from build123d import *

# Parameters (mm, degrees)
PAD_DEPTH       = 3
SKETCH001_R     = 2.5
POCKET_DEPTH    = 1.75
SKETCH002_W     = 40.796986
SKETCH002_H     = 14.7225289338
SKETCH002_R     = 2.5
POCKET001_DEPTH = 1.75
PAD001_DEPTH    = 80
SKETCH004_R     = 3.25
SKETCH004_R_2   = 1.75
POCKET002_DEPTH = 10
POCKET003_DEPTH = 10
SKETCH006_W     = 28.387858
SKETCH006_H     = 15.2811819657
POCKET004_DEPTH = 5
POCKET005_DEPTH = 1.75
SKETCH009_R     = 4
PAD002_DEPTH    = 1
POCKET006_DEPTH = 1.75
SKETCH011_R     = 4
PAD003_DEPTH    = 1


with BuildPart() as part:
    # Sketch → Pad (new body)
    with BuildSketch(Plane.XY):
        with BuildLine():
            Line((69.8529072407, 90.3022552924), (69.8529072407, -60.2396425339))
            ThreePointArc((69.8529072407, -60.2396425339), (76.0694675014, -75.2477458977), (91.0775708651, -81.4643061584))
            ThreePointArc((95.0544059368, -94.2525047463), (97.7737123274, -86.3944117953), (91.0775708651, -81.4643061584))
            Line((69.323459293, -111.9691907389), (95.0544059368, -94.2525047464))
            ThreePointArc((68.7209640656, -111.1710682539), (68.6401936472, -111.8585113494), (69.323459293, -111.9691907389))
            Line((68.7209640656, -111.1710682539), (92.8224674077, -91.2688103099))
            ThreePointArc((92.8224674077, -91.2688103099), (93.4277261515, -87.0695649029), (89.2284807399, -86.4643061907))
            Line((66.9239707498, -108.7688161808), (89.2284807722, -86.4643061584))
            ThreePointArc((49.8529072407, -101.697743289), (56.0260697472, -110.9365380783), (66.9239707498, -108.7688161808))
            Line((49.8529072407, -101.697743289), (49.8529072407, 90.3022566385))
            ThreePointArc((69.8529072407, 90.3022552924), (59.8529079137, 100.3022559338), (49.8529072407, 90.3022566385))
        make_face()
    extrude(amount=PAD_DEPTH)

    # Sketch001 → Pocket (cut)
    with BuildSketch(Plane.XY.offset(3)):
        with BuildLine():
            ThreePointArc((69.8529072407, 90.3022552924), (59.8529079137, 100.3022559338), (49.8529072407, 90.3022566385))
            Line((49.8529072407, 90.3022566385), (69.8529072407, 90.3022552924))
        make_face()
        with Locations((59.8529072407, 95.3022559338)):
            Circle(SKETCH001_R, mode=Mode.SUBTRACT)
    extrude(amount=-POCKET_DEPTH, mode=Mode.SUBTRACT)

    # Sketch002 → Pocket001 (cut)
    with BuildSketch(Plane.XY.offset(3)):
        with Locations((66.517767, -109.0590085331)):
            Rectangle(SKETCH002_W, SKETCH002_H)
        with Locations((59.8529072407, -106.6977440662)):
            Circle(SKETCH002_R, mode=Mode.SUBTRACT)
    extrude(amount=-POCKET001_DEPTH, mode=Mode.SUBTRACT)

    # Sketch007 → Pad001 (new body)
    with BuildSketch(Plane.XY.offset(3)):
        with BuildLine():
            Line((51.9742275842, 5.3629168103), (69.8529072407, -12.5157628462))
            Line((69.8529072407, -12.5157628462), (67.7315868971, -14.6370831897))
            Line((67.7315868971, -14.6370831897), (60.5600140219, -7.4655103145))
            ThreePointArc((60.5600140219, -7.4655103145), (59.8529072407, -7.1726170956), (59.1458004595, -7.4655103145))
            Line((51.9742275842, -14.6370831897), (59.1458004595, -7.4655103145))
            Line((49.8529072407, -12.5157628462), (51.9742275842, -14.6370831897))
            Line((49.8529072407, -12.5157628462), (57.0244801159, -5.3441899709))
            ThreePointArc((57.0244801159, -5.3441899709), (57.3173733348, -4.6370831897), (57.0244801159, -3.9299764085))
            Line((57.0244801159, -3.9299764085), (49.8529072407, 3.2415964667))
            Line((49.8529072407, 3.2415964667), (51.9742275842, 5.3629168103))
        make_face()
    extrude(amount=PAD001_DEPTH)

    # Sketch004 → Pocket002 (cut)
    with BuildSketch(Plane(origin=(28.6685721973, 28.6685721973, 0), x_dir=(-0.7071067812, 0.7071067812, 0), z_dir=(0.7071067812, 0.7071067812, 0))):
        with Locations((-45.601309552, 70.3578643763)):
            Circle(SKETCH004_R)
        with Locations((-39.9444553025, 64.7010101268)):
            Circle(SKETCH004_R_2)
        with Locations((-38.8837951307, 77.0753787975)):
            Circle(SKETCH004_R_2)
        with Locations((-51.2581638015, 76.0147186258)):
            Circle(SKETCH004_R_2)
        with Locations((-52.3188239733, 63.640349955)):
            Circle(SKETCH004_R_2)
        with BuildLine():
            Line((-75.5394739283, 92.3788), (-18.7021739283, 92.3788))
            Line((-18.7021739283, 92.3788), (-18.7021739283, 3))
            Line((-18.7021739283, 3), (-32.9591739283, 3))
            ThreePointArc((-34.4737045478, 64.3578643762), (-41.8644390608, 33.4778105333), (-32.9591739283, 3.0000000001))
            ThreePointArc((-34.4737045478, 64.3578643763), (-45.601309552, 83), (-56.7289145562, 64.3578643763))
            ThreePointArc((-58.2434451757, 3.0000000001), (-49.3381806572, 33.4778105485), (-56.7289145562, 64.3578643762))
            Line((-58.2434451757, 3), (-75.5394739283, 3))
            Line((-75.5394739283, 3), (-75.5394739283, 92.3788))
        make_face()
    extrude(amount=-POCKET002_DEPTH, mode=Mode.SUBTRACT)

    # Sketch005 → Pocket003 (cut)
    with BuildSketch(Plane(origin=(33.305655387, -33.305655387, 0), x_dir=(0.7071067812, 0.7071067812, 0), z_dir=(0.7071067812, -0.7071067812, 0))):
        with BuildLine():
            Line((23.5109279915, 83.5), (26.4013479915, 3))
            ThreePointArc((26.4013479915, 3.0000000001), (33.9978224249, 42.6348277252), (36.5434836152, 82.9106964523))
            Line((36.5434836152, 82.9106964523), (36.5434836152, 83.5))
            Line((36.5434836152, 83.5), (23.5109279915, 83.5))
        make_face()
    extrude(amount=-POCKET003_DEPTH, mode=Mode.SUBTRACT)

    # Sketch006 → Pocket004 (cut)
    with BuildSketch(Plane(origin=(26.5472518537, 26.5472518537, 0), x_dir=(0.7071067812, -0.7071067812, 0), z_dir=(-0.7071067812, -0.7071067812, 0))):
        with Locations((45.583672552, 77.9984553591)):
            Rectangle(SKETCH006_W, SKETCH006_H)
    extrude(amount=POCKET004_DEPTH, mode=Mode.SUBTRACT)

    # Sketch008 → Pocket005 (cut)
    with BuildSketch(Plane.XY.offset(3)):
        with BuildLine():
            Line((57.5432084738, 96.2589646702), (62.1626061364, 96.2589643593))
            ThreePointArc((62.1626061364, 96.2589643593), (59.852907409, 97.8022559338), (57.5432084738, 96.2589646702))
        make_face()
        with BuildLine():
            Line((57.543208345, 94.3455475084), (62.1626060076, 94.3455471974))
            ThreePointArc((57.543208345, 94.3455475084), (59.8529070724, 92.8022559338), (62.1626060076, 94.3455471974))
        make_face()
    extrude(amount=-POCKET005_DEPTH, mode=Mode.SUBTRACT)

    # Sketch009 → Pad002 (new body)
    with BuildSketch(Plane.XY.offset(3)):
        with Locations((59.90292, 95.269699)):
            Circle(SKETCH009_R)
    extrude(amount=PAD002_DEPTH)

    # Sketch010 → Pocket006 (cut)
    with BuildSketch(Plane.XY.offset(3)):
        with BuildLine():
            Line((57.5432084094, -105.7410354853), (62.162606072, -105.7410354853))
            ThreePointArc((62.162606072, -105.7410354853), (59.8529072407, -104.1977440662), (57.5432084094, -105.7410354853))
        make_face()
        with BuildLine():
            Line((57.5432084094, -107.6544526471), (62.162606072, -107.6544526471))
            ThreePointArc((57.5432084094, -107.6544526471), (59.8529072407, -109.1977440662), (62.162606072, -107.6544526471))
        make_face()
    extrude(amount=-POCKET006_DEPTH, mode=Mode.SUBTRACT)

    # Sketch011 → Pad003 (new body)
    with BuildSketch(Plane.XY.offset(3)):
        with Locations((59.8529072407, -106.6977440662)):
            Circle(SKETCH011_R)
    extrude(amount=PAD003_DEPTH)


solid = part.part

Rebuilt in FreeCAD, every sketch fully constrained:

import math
import FreeCAD as App
import Part
import Sketcher
Q = App.Units.Quantity


def add_polygon(sketch, points):
    """Adds a closed chain of lines whose ends are joined by coincident constraints."""
    first, n = sketch.GeometryCount, len(points)
    for a, b in zip(points, points[1:] + points[:1]):
        sketch.addGeometry(Part.LineSegment(App.Vector(*a, 0), App.Vector(*b, 0)), False)
    for i in range(n):
        sketch.addConstraint(Sketcher.Constraint("Coincident", first + i, 2, first + (i + 1) % n, 1))

doc = App.newDocument("Part")
body = doc.addObject("PartDesign::Body", "Body")

# Sketch on XY plane
sketch1 = body.newObject("Sketcher::SketchObject", "Sketch")
sketch1.AttachmentSupport = (doc.getObject("XY_Plane"), [""])
sketch1.MapMode = "FlatFace"
sketch1.addGeometry([
    Part.LineSegment(App.Vector(69.9, -60.2, 0), App.Vector(69.9, 90.3, 0)),  # 0
    Part.ArcOfCircle(Part.Circle(App.Vector(59.9, 90.3, 0), App.Vector(0, 0, 1), 10), math.radians(0), math.radians(180)),  # 1
    Part.LineSegment(App.Vector(49.9, 90.3, 0), App.Vector(49.9, -101.7, 0)),  # 2
    Part.ArcOfCircle(Part.Circle(App.Vector(59.9, -101.7, 0), App.Vector(0, 0, 1), 10), math.radians(180), math.radians(315)),  # 3
    Part.LineSegment(App.Vector(66.9, -108.8, 0), App.Vector(89.2, -86.5, 0)),  # 4
    Part.ArcOfCircle(Part.Circle(App.Vector(91, -88.9, 0), App.Vector(0, 0, 1), 3), math.radians(-53), math.radians(127)),  # 5
    Part.LineSegment(App.Vector(92.8, -91.3, 0), App.Vector(68.7, -111.2, 0)),  # 6
    Part.ArcOfCircle(Part.Circle(App.Vector(69, -111.6, 0), App.Vector(0, 0, 1), 0.5), math.radians(130), math.radians(305)),  # 7
    Part.LineSegment(App.Vector(69.3, -112, 0), App.Vector(95.1, -94.3, 0)),  # 8
    Part.ArcOfCircle(Part.Circle(App.Vector(91.1, -88.5, 0), App.Vector(0, 0, 1), 7), math.radians(-55), math.radians(90)),  # 9
    Part.ArcOfCircle(Part.Circle(App.Vector(91.1, -60.2, 0), App.Vector(0, 0, 1), 21.2), math.radians(-180), math.radians(-90)),  # 10
], False)
sketch1.addConstraint([
    Sketcher.Constraint("Tangent", 0, 2, 1, 1),
    Sketcher.Constraint("Tangent", 1, 2, 2, 1),
    Sketcher.Constraint("Tangent", 2, 2, 3, 1),
    Sketcher.Constraint("Tangent", 3, 2, 4, 1),
    Sketcher.Constraint("Coincident", 4, 2, 5, 2),
    Sketcher.Constraint("Coincident", 5, 1, 6, 1),
    Sketcher.Constraint("Tangent", 6, 2, 7, 1),
    Sketcher.Constraint("Tangent", 7, 2, 8, 1),
    Sketcher.Constraint("Coincident", 8, 2, 9, 1),
    Sketcher.Constraint("Tangent", 9, 2, 10, 2),
    Sketcher.Constraint("Tangent", 10, 1, 0, 1),
    Sketcher.Constraint("Vertical", 0),
    Sketcher.Constraint("Vertical", 2),
    Sketcher.Constraint("Equal", 1, 3),
    Sketcher.Constraint("Vertical", 9, 3, 10, 3),
    Sketcher.Constraint("Radius", 1, 10.0),
    Sketcher.Constraint("Radius", 5, 3.0),
    Sketcher.Constraint("DistanceY", 2, 2, 2, 1, 192.0),
    Sketcher.Constraint("Angle", 4, Q("45 deg")),
    Sketcher.Constraint("DistanceY", 4, 2, 9, 2, 5.0),
    Sketcher.Constraint("Radius", 9, 7.012451),
    Sketcher.Constraint("Radius", 7, 0.500476),
    Sketcher.Constraint("Radius", 10, 21.224664),
    Sketcher.Constraint("Distance", 8, 31.2404),
    Sketcher.Constraint("DistanceY", 5, 3, 9, 3, 0.389801),
    Sketcher.Constraint("DistanceY", 10, 3, 1, 2, 150.541898),
    Sketcher.Constraint("DistanceY", 8, 2, 4, 2, 7.788199),
    Sketcher.Constraint("DistanceY", 5, 3, -1, 1, 88.866558),
    Sketcher.Constraint("DistanceX", -1, 1, 9, 3, 91.077571),
    Sketcher.Constraint("DistanceY", 5, 1, -1, 1, 91.26881),
    Sketcher.Constraint("DistanceY", 6, 2, -1, 1, 111.171068),
])
pad1 = body.newObject("PartDesign::Pad", "Pad")
pad1.Profile = sketch1
pad1.Length = 3

# Sketch on XY plane
sketch2 = body.newObject("Sketcher::SketchObject", "Sketch001")
sketch2.AttachmentSupport = (doc.getObject("XY_Plane"), [""])
sketch2.MapMode = "FlatFace"
sketch2.AttachmentOffset = App.Placement(App.Vector(0, 0, 3), App.Rotation())
sketch2.addGeometry([
    Part.ArcOfCircle(Part.Circle(App.Vector(59.9, 90.3, 0), App.Vector(0, 0, 1), 10), math.radians(0), math.radians(180)),
    Part.LineSegment(App.Vector(49.9, 90.3, 0), App.Vector(69.9, 90.3, 0)),
    Part.Circle(App.Vector(59.9, 95.3, 0), App.Vector(0, 0, 1), 2.5),
], False)
sketch2.addConstraint([
    Sketcher.Constraint("Coincident", 0, 1, 1, 2),
    Sketcher.Constraint("Coincident", 1, 1, 0, 2),
    Sketcher.Constraint("Horizontal", 1),
    Sketcher.Constraint("Vertical", 0, 3, 2, 3),
    Sketcher.Constraint("Diameter", 2, 5.0),
    Sketcher.Constraint("Radius", 0, 10.0),
    Sketcher.Constraint("DistanceY", 0, 3, 2, 3, 5.0),
    Sketcher.Constraint("DistanceY", 0, 1, 2, 3, 5.000001),
    Sketcher.Constraint("DistanceX", -1, 1, 0, 3, 59.852907),
    Sketcher.Constraint("DistanceY", -1, 1, 0, 3, 90.302256),
])
pocket1 = body.newObject("PartDesign::Pocket", "Pocket")
pocket1.Profile = sketch2
pocket1.Length = 1.75

# Sketch on XY plane
sketch3 = body.newObject("Sketcher::SketchObject", "Sketch002")
sketch3.AttachmentSupport = (doc.getObject("XY_Plane"), [""])
sketch3.MapMode = "FlatFace"
sketch3.AttachmentOffset = App.Placement(App.Vector(0, 0, 3), App.Rotation())
add_polygon(sketch3, [(46.1, -101.7), (46.1, -116.4), (86.9, -116.4), (86.9, -101.7)])  # lines 0-3
sketch3.addGeometry(Part.Circle(App.Vector(59.9, -106.7, 0), App.Vector(0, 0, 1), 2.5), False)  # 4
sketch3.addConstraint([
    Sketcher.Constraint("Vertical", 0),
    Sketcher.Constraint("Horizontal", 1),
    Sketcher.Constraint("Vertical", 2),
    Sketcher.Constraint("Horizontal", 3),
    Sketcher.Constraint("Diameter", 4, 5.0),
    Sketcher.Constraint("DistanceY", 4, 3, 2, 2, 5.0),
    Sketcher.Constraint("DistanceY", 0, 2, 0, 1, 14.722529),
    Sketcher.Constraint("DistanceX", 1, 1, 1, 2, 40.796986),
    Sketcher.Constraint("DistanceX", -1, 1, 1, 2, 86.91626),
    Sketcher.Constraint("DistanceX", -1, 1, 4, 3, 59.852907),
    Sketcher.Constraint("DistanceY", 4, 3, -1, 1, 106.697744),
])
pocket2 = body.newObject("PartDesign::Pocket", "Pocket001")
pocket2.Profile = sketch3
pocket2.Length = 1.75

# Sketch on XY plane
sketch4 = body.newObject("Sketcher::SketchObject", "Sketch003")
sketch4.AttachmentSupport = (doc.getObject("XY_Plane"), [""])
sketch4.MapMode = "FlatFace"
sketch4.AttachmentOffset = App.Placement(App.Vector(0, 0, 3), App.Rotation())
sketch4.addGeometry([
    Part.LineSegment(App.Vector(69.9, -12.5, 0), App.Vector(52, 5.4, 0)),  # 0
    Part.LineSegment(App.Vector(52, 5.4, 0), App.Vector(49.9, 3.2, 0)),  # 1
    Part.LineSegment(App.Vector(49.9, 3.2, 0), App.Vector(57, -3.9, 0)),  # 2
    Part.ArcOfCircle(Part.Circle(App.Vector(56.3, -4.6, 0), App.Vector(0, 0, 1), 1), math.radians(-45), math.radians(45)),  # 3
    Part.LineSegment(App.Vector(57, -5.3, 0), App.Vector(49.9, -12.5, 0)),  # 4
    Part.LineSegment(App.Vector(49.9, -12.5, 0), App.Vector(52, -14.6, 0)),  # 5
    Part.LineSegment(App.Vector(52, -14.6, 0), App.Vector(59.1, -7.5, 0)),  # 6
    Part.ArcOfCircle(Part.Circle(App.Vector(59.9, -8.2, 0), App.Vector(0, 0, 1), 1), math.radians(45), math.radians(135)),  # 7
    Part.LineSegment(App.Vector(60.6, -7.5, 0), App.Vector(67.7, -14.6, 0)),  # 8
    Part.LineSegment(App.Vector(67.7, -14.6, 0), App.Vector(69.9, -12.5, 0)),  # 9
], False)
sketch4.addConstraint([
    Sketcher.Constraint("Coincident", 0, 2, 1, 1),
    Sketcher.Constraint("Coincident", 1, 2, 2, 1),
    Sketcher.Constraint("Tangent", 2, 2, 3, 2),
    Sketcher.Constraint("Tangent", 3, 1, 4, 1),
    Sketcher.Constraint("Coincident", 4, 2, 5, 1),
    Sketcher.Constraint("Coincident", 5, 2, 6, 1),
    Sketcher.Constraint("Tangent", 6, 2, 7, 2),
    Sketcher.Constraint("Tangent", 7, 1, 8, 1),
    Sketcher.Constraint("Coincident", 8, 2, 9, 1),
    Sketcher.Constraint("Coincident", 9, 2, 0, 1),
    Sketcher.Constraint("Equal", 3, 7),
    Sketcher.Constraint("Perpendicular", 0, 1),
    Sketcher.Constraint("Perpendicular", 1, 2),
    Sketcher.Constraint("Perpendicular", 2, 4),
    Sketcher.Constraint("Perpendicular", 4, 5),
    Sketcher.Constraint("Perpendicular", 5, 6),
    Sketcher.Constraint("Perpendicular", 6, 8),
    Sketcher.Constraint("Perpendicular", 8, 9),
    Sketcher.Constraint("Horizontal", 6, 2, 7, 1),
    Sketcher.Constraint("Horizontal", 5, 2, 8, 2),
    Sketcher.Constraint("Horizontal", 4, 2, 9, 2),
    Sketcher.Constraint("Vertical", 1, 2, 4, 2),
    Sketcher.Constraint("Vertical", 0, 2, 5, 2),
    Sketcher.Constraint("Radius", 3, 1.0),
    Sketcher.Constraint("Distance", 1, 3.0),
    Sketcher.Constraint("DistanceY", 3, 3, 0, 2, 10.0),
    Sketcher.Constraint("DistanceX", -1, 1, 6, 2, 59.1458),
    Sketcher.Constraint("DistanceY", 3, 1, -1, 1, 5.34419),
])
pad2 = body.newObject("PartDesign::Pad", "Pad001")
pad2.Profile = sketch4
pad2.Length = 80

# Sketch on an angled plane
sketch5 = body.newObject("Sketcher::SketchObject", "Sketch004")
sketch5.Placement = App.Placement(App.Vector(28.668572, 28.668572, 0), App.Rotation(App.Vector(-0.707106781, 0.707106781, 0), App.Vector(0, 0, 0.999999999), App.Vector(0.707106781, 0.707106781, 0), "ZXY"))
sketch5.addGeometry([
    Part.Circle(App.Vector(-45.60131, 70.357864, 0), App.Vector(0, 0, 1), 3.25),  # 0
    Part.Circle(App.Vector(-39.944455, 64.70101, 0), App.Vector(0, 0, 1), 1.75),  # 1
    Part.Circle(App.Vector(-38.883795, 77.075379, 0), App.Vector(0, 0, 1), 1.75),  # 2
    Part.Circle(App.Vector(-51.258164, 76.014719, 0), App.Vector(0, 0, 1), 1.75),  # 3
    Part.Circle(App.Vector(-52.318824, 63.64035, 0), App.Vector(0, 0, 1), 1.75),  # 4
    Part.LineSegment(App.Vector(-18.702174, 92.3788, 0), App.Vector(-75.539474, 92.3788, 0)),  # 5
    Part.LineSegment(App.Vector(-75.539474, 92.3788, 0), App.Vector(-75.539474, 3, 0)),  # 6
    Part.LineSegment(App.Vector(-75.539474, 3, 0), App.Vector(-58.243445, 3, 0)),  # 7
    Part.ArcOfCircle(Part.Circle(App.Vector(-111.168499, 35.004003, 0), App.Vector(0, 0, 1), 61.849151), math.radians(-31.16153), math.radians(28.333577)),  # 8
    Part.ArcOfCircle(Part.Circle(App.Vector(-45.60131, 70.357864, 0), App.Vector(0, 0, 1), 12.642136), math.radians(-28.333528), math.radians(208.333528)),  # 9
    Part.ArcOfCircle(Part.Circle(App.Vector(19.965875, 35.004003, 0), App.Vector(0, 0, 1), 61.849147), math.radians(151.666421), math.radians(211.161532)),  # 10
    Part.LineSegment(App.Vector(-32.959174, 3, 0), App.Vector(-18.702174, 3, 0)),  # 11
    Part.LineSegment(App.Vector(-18.702174, 3, 0), App.Vector(-18.702174, 92.3788, 0)),  # 12
], False)
sketch5.addConstraint([
    Sketcher.Constraint("Coincident", 5, 2, 6, 1),
    Sketcher.Constraint("Coincident", 6, 2, 7, 1),
    Sketcher.Constraint("Coincident", 7, 2, 8, 1),
    Sketcher.Constraint("Coincident", 8, 2, 9, 2),
    Sketcher.Constraint("Coincident", 9, 1, 10, 1),
    Sketcher.Constraint("Coincident", 10, 2, 11, 1),
    Sketcher.Constraint("Coincident", 11, 2, 12, 1),
    Sketcher.Constraint("Coincident", 12, 2, 5, 1),
    Sketcher.Constraint("Horizontal", 5),
    Sketcher.Constraint("Vertical", 6),
    Sketcher.Constraint("Horizontal", 7),
    Sketcher.Constraint("Horizontal", 11),
    Sketcher.Constraint("Vertical", 12),
    Sketcher.Constraint("Coincident", 9, 3, 0, 3),
    Sketcher.Constraint("Diameter", 0, 6.5),
    Sketcher.Constraint("Diameter", 1, 3.5),
    Sketcher.Constraint("Diameter", 2, 3.5),
    Sketcher.Constraint("Diameter", 3, 3.5),
    Sketcher.Constraint("Diameter", 4, 3.5),
    Sketcher.Constraint("DistanceY", -1, 1, 6, 2, 3.0),
    Sketcher.Constraint("DistanceY", -1, 1, 10, 2, 3.0),
    Sketcher.Constraint("DistanceY", 8, 2, 0, 3, 6.0),
    Sketcher.Constraint("DistanceY", 9, 1, 0, 3, 6.0),
    Sketcher.Constraint("DistanceX", 11, 1, 11, 2, 14.257),
    Sketcher.Constraint("Radius", 8, 61.849151),
    Sketcher.Constraint("DistanceX", 5, 2, 5, 1, 56.8373),
    Sketcher.Constraint("DistanceY", 6, 2, 6, 1, 89.3788),
    Sketcher.Constraint("Radius", 9, 12.642136),
    Sketcher.Constraint("Radius", 10, 61.849147),
    Sketcher.Constraint("DistanceX", 7, 1, 7, 2, 17.296029),
    Sketcher.Constraint("DistanceX", 8, 3, -1, 1, 111.168499),
    Sketcher.Constraint("DistanceX", 4, 3, 10, 3, 72.284699),
    Sketcher.Constraint("DistanceX", 0, 3, -1, 1, 45.60131),
    Sketcher.Constraint("DistanceY", -1, 1, 1, 3, 64.70101),
    Sketcher.Constraint("DistanceY", -1, 1, 2, 3, 77.075379),
    Sketcher.Constraint("DistanceY", -1, 1, 3, 3, 76.014719),
    Sketcher.Constraint("DistanceY", -1, 1, 4, 3, 63.64035),
    Sketcher.Constraint("DistanceX", 1, 3, 2, 3, 1.06066),
    Sketcher.Constraint("DistanceX", 3, 3, 2, 3, 12.374369),
    Sketcher.Constraint("DistanceX", 4, 3, 3, 3, 1.06066),
    Sketcher.Constraint("DistanceY", 10, 3, 0, 3, 35.353861),
])
pocket3 = body.newObject("PartDesign::Pocket", "Pocket002")
pocket3.Profile = sketch5
pocket3.Length = 10

# Sketch on an angled plane
sketch6 = body.newObject("Sketcher::SketchObject", "Sketch005")
sketch6.Placement = App.Placement(App.Vector(33.305655, -33.305655, 0), App.Rotation(App.Vector(0.707106781, 0.707106781, 0), App.Vector(0, 0, 0.999999999), App.Vector(0.707106781, -0.707106781, 0), "ZXY"))
sketch6.addGeometry([
    Part.LineSegment(App.Vector(23.5, 83.5, 0), App.Vector(26.4, 3, 0)),
    Part.ArcOfCircle(Part.Circle(App.Vector(-283.3, 82.9, 0), App.Vector(0, 0, 1), 319.9), math.radians(-14.47), math.radians(0)),
    Part.LineSegment(App.Vector(36.5, 82.9, 0), App.Vector(36.5, 83.5, 0)),
    Part.LineSegment(App.Vector(36.5, 83.5, 0), App.Vector(23.5, 83.5, 0)),
], False)
sketch6.addConstraint([
    Sketcher.Constraint("Coincident", 0, 2, 1, 1),
    Sketcher.Constraint("Tangent", 1, 2, 2, 1),
    Sketcher.Constraint("Coincident", 2, 2, 3, 1),
    Sketcher.Constraint("Coincident", 3, 2, 0, 1),
    Sketcher.Constraint("Horizontal", 3),
    Sketcher.Constraint("DistanceY", -1, 1, 0, 2, 3.0),
    Sketcher.Constraint("DistanceY", -1, 1, 2, 2, 83.5),
    Sketcher.Constraint("Radius", 1, 319.882188),
    Sketcher.Constraint("DistanceX", 3, 2, 3, 1, 13.032556),
    Sketcher.Constraint("DistanceY", 2, 1, 2, 2, 0.589304),
    Sketcher.Constraint("DistanceX", 1, 3, 0, 2, 309.740052),
    Sketcher.Constraint("DistanceX", 1, 3, -1, 1, 283.338704),
])
pocket4 = body.newObject("PartDesign::Pocket", "Pocket003")
pocket4.Profile = sketch6
pocket4.Length = 10

# Sketch on an angled plane
sketch7 = body.newObject("Sketcher::SketchObject", "Sketch006")
sketch7.Placement = App.Placement(App.Vector(26.547252, 26.547252, 0), App.Rotation(App.Vector(0.707106781, -0.707106781, 0), App.Vector(0, 0, 0.999999999), App.Vector(-0.707106781, -0.707106781, 0), "ZXY"))
add_polygon(sketch7, [(31, 86), (31, 70), (60, 70), (60, 86)])  # lines 0-3
sketch7.addConstraint([
    Sketcher.Constraint("Vertical", 0),
    Sketcher.Constraint("Horizontal", 1),
    Sketcher.Constraint("Vertical", 2),
    Sketcher.Constraint("Horizontal", 3),
    Sketcher.Constraint("DistanceY", 0, 2, 0, 1, 15.281182),
    Sketcher.Constraint("DistanceX", -1, 1, 1, 2, 59.777602),
    Sketcher.Constraint("DistanceX", 1, 1, 1, 2, 28.387858),
    Sketcher.Constraint("DistanceY", -1, 1, 0, 2, 70.357864),
])
pocket5 = body.newObject("PartDesign::Pocket", "Pocket004")
pocket5.Profile = sketch7
pocket5.Length = 5
pocket5.Reversed = True

# Sketch on XY plane
sketch8 = body.newObject("Sketcher::SketchObject", "Sketch007")
sketch8.AttachmentSupport = (doc.getObject("XY_Plane"), [""])
sketch8.MapMode = "FlatFace"
sketch8.AttachmentOffset = App.Placement(App.Vector(0, 0, 3), App.Rotation())
sketch8.addGeometry([
    Part.LineSegment(App.Vector(57.5, 96.3, 0), App.Vector(62.2, 96.3, 0)),
    Part.ArcOfCircle(Part.Circle(App.Vector(59.9, 95.3, 0), App.Vector(0, 0, 1), 2.5), math.radians(22), math.radians(157)),
    Part.LineSegment(App.Vector(62.2, 94.3, 0), App.Vector(57.5, 94.3, 0)),
    Part.ArcOfCircle(Part.Circle(App.Vector(59.9, 95.3, 0), App.Vector(0, 0, 1), 2.5), math.radians(-158), math.radians(-23)),
], False)
sketch8.addConstraint([
    Sketcher.Constraint("Coincident", 0, 1, 1, 2),
    Sketcher.Constraint("Coincident", 1, 1, 0, 2),
    Sketcher.Constraint("Coincident", 2, 1, 3, 2),
    Sketcher.Constraint("Coincident", 3, 1, 2, 2),
    Sketcher.Constraint("Horizontal", 0),
    Sketcher.Constraint("Horizontal", 2),
    Sketcher.Constraint("Coincident", 3, 3, 1, 3),
    Sketcher.Constraint("Equal", 1, 3),
    Sketcher.Constraint("Vertical", 1, 1, 2, 1),
    Sketcher.Constraint("Radius", 1, 2.5),
    Sketcher.Constraint("DistanceX", 0, 1, 1, 3, 2.309699),
    Sketcher.Constraint("DistanceX", -1, 1, 0, 1, 57.543208),
    Sketcher.Constraint("DistanceY", -1, 1, 1, 3, 95.302256),
])
pocket6 = body.newObject("PartDesign::Pocket", "Pocket005")
pocket6.Profile = sketch8
pocket6.Length = 1.75

# Sketch on XY plane
sketch9 = body.newObject("Sketcher::SketchObject", "Sketch008")
sketch9.AttachmentSupport = (doc.getObject("XY_Plane"), [""])
sketch9.MapMode = "FlatFace"
sketch9.AttachmentOffset = App.Placement(App.Vector(0, 0, 3), App.Rotation())
sketch9.addGeometry(Part.Circle(App.Vector(59.9, 95.3, 0), App.Vector(0, 0, 1), 4), False)
sketch9.addConstraint([
    Sketcher.Constraint("Diameter", 0, 8.0),
    Sketcher.Constraint("DistanceY", -1, 1, 0, 3, 95.269699),
    Sketcher.Constraint("DistanceX", -1, 1, 0, 3, 59.90292),
])
pad3 = body.newObject("PartDesign::Pad", "Pad002")
pad3.Profile = sketch9
pad3.Length = 1

# Sketch on XY plane
sketch10 = body.newObject("Sketcher::SketchObject", "Sketch009")
sketch10.AttachmentSupport = (doc.getObject("XY_Plane"), [""])
sketch10.MapMode = "FlatFace"
sketch10.AttachmentOffset = App.Placement(App.Vector(0, 0, 3), App.Rotation())
sketch10.addGeometry([
    Part.LineSegment(App.Vector(57.5, -105.7, 0), App.Vector(62.2, -105.7, 0)),
    Part.ArcOfCircle(Part.Circle(App.Vector(59.9, -106.7, 0), App.Vector(0, 0, 1), 2.5), math.radians(23), math.radians(158)),
    Part.LineSegment(App.Vector(62.2, -107.7, 0), App.Vector(57.5, -107.7, 0)),
    Part.ArcOfCircle(Part.Circle(App.Vector(59.9, -106.7, 0), App.Vector(0, 0, 1), 2.5), math.radians(-158), math.radians(-23)),
], False)
sketch10.addConstraint([
    Sketcher.Constraint("Coincident", 0, 1, 1, 2),
    Sketcher.Constraint("Coincident", 1, 1, 0, 2),
    Sketcher.Constraint("Coincident", 2, 1, 3, 2),
    Sketcher.Constraint("Coincident", 3, 1, 2, 2),
    Sketcher.Constraint("Horizontal", 0),
    Sketcher.Constraint("Horizontal", 2),
    Sketcher.Constraint("Coincident", 3, 3, 1, 3),
    Sketcher.Constraint("Equal", 1, 3),
    Sketcher.Constraint("Vertical", 1, 1, 2, 1),
    Sketcher.Constraint("Radius", 1, 2.5),
    Sketcher.Constraint("DistanceX", 0, 1, 1, 3, 2.309699),
    Sketcher.Constraint("DistanceX", -1, 1, 0, 1, 57.543208),
    Sketcher.Constraint("DistanceY", 1, 3, -1, 1, 106.697744),
])
pocket7 = body.newObject("PartDesign::Pocket", "Pocket006")
pocket7.Profile = sketch10
pocket7.Length = 1.75

# Sketch on XY plane
sketch11 = body.newObject("Sketcher::SketchObject", "Sketch010")
sketch11.AttachmentSupport = (doc.getObject("XY_Plane"), [""])
sketch11.MapMode = "FlatFace"
sketch11.AttachmentOffset = App.Placement(App.Vector(0, 0, 3), App.Rotation())
sketch11.addGeometry(Part.Circle(App.Vector(59.9, -106.7, 0), App.Vector(0, 0, 1), 4), False)
sketch11.addConstraint([
    Sketcher.Constraint("Diameter", 0, 8.0),
    Sketcher.Constraint("DistanceX", -1, 1, 0, 3, 59.852907),
    Sketcher.Constraint("DistanceY", 0, 3, -1, 1, 106.697744),
])
pad4 = body.newObject("PartDesign::Pad", "Pad003")
pad4.Profile = sketch11
pad4.Length = 1

doc.recompute()
